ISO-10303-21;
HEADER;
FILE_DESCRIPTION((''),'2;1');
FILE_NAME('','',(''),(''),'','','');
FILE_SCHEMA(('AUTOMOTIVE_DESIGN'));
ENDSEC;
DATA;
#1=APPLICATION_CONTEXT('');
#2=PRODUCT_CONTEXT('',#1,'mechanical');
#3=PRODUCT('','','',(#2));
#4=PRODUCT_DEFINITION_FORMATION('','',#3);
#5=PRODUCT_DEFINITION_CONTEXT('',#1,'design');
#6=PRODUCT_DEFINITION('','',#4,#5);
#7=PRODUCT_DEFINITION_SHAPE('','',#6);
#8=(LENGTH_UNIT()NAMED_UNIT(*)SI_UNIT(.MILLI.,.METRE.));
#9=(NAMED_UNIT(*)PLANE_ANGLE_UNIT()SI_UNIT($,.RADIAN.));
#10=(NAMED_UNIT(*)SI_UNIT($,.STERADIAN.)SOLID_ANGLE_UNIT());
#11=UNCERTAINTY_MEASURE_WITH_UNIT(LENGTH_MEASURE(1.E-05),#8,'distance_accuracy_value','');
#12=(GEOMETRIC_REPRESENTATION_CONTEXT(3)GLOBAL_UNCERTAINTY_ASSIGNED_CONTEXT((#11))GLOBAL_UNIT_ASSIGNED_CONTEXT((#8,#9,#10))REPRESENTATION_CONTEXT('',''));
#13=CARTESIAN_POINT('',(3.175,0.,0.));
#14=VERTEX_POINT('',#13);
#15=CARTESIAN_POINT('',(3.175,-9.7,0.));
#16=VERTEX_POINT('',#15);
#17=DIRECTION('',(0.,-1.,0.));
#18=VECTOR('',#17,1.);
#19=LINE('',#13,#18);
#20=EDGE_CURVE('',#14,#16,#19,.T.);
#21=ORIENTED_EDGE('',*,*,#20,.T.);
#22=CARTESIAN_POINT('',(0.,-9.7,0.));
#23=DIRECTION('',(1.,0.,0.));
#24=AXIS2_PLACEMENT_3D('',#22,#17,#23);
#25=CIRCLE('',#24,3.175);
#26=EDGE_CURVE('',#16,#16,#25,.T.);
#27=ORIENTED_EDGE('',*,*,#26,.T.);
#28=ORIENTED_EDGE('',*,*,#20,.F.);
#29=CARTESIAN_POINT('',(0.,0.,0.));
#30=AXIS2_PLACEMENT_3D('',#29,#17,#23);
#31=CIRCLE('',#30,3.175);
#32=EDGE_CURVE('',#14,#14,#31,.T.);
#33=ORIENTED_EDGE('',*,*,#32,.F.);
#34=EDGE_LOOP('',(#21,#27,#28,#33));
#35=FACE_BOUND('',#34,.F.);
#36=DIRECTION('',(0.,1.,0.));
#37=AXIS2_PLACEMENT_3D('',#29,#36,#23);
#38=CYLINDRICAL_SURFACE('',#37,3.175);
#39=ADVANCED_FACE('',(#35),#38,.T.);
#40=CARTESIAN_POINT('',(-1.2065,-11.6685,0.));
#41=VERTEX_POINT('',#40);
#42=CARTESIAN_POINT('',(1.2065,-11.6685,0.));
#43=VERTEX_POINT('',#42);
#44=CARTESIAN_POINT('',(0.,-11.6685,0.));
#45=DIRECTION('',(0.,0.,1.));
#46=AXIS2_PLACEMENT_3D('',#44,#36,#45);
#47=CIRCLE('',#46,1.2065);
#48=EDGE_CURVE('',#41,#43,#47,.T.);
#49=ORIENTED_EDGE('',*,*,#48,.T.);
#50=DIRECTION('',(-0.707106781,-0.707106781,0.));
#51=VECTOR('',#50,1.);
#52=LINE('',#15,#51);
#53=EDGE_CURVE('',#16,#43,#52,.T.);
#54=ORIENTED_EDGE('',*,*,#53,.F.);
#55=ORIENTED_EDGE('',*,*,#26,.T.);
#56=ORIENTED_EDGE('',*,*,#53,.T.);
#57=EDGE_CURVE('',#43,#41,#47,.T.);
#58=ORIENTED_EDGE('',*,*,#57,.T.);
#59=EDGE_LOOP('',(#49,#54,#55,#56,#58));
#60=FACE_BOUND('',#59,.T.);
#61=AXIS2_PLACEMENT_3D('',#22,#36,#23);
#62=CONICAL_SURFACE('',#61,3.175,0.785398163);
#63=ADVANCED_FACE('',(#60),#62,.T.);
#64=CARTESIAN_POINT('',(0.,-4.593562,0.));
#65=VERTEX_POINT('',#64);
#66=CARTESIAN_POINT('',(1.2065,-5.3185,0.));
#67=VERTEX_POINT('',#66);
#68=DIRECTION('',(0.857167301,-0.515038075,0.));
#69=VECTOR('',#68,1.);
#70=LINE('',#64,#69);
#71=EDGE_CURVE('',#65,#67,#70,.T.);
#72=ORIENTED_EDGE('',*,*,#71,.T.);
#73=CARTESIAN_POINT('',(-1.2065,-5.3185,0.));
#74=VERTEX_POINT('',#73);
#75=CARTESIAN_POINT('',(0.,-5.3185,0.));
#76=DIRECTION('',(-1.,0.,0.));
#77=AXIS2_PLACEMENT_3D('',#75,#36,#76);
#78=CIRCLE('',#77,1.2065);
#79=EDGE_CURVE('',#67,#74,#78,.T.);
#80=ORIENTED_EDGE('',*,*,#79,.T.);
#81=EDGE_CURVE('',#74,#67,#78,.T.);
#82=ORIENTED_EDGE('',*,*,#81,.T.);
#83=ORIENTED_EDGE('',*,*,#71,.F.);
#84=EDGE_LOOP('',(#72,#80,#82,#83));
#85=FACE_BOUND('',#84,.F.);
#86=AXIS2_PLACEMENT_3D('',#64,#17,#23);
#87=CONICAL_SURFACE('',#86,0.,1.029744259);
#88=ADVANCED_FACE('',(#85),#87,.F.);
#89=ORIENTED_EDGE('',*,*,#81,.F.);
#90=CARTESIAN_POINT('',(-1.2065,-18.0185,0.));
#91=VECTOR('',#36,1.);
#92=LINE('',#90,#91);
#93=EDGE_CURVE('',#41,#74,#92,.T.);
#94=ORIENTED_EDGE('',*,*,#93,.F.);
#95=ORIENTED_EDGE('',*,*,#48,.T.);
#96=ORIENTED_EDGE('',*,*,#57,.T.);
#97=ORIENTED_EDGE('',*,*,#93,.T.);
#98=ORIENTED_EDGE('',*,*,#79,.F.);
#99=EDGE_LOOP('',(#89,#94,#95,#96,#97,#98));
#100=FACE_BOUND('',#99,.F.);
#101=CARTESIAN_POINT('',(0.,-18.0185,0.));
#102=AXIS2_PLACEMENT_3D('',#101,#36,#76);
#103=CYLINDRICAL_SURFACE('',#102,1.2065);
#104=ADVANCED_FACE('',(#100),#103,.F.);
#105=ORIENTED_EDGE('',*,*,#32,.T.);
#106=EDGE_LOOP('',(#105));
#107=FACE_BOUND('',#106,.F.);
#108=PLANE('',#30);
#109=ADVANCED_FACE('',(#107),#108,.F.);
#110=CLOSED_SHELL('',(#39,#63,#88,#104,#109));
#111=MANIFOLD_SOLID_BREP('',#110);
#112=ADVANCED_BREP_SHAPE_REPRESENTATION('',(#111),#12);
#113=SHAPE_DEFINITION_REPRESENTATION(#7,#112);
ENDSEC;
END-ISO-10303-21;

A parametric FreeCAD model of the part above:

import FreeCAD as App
import Part
import Sketcher

V = App.Vector
Q = App.Units.Quantity


def edges_at(feature, points):
    """Names of the edges that pass closest to the given points."""
    edges = feature.Shape.Edges
    near = lambda p: min(range(len(edges)), key=lambda i: edges[i].distToShape(Part.Vertex(*p))[0])
    return sorted({f"Edge{near(p) + 1}" for p in points})

doc = App.newDocument("Part")
params = doc.addObject("Spreadsheet::Sheet", "Params")
for row, (alias, value) in enumerate([
    ("sketch1_diameter", "0.25 in"),
    ("pad1_length", "0.5 in"),
    ("chamfer_size", "3 mm"),
    ("sketch2_diameter", "0.095 in"),
    ("hole_diameter", "0.095 in"),
    ("hole_depth", "0.25 in"),
], start=1):
    params.set(f"A{row}", alias)
    params.set(f"B{row}", "=" + value)
    params.setAlias(f"B{row}", alias)

body = doc.addObject("PartDesign::Body", "Body")

# Sketch on XZ plane
sketch1 = body.newObject("Sketcher::SketchObject", "Sketch")
sketch1.AttachmentSupport = (doc.getObject("XZ_Plane"), [""])
sketch1.MapMode = "FlatFace"
sketch1.addGeometry(Part.Circle(V(0, 0, 0), V(0, 0, 1), 3.175), False)
sketch1.addConstraint([
    Sketcher.Constraint("Coincident", 0, 3, -1, 1),
    Sketcher.Constraint("Diameter", 0, Q("0.25 in")),
])
sketch1.setExpression("Constraints[1]", "Params.sketch1_diameter")
pad1 = body.newObject("PartDesign::Pad", "Pad")
pad1.Profile = sketch1
pad1.setExpression("Length", "Params.pad1_length")
doc.recompute()

chamfer = body.newObject("PartDesign::Chamfer", "Chamfer")
chamfer.Base = (pad1, edges_at(pad1, [(-3.175, -12.7, 0)]))
chamfer.setExpression("Size", "Params.chamfer_size")

# Sketch on XZ plane
sketch2 = body.newObject("Sketcher::SketchObject", "Sketch001")
sketch2.AttachmentSupport = (doc.getObject("XZ_Plane"), [""])
sketch2.MapMode = "FlatFace"
sketch2.AttachmentOffset = App.Placement(V(0, 0, 11.6685), App.Rotation())
sketch2.addGeometry(Part.Circle(V(0, 0, 0), V(0, 0, 1), 1.2065), False)
sketch2.addConstraint([
    Sketcher.Constraint("Coincident", 0, 3, -1, 1),
    Sketcher.Constraint("Diameter", 0, Q("0.095 in")),
])
sketch2.setExpression("Constraints[1]", "Params.sketch2_diameter")
doc.recompute()
hole = body.newObject("PartDesign::Hole", "Hole")
hole.Profile = sketch2
hole.ThreadType = "None"
hole.setExpression("Diameter", "Params.hole_diameter")
hole.DepthType = "Dimension"
hole.setExpression("Depth", "Params.hole_depth")
hole.DrillPoint = "Angled"
hole.DrillPointAngle = 118

doc.recompute()
